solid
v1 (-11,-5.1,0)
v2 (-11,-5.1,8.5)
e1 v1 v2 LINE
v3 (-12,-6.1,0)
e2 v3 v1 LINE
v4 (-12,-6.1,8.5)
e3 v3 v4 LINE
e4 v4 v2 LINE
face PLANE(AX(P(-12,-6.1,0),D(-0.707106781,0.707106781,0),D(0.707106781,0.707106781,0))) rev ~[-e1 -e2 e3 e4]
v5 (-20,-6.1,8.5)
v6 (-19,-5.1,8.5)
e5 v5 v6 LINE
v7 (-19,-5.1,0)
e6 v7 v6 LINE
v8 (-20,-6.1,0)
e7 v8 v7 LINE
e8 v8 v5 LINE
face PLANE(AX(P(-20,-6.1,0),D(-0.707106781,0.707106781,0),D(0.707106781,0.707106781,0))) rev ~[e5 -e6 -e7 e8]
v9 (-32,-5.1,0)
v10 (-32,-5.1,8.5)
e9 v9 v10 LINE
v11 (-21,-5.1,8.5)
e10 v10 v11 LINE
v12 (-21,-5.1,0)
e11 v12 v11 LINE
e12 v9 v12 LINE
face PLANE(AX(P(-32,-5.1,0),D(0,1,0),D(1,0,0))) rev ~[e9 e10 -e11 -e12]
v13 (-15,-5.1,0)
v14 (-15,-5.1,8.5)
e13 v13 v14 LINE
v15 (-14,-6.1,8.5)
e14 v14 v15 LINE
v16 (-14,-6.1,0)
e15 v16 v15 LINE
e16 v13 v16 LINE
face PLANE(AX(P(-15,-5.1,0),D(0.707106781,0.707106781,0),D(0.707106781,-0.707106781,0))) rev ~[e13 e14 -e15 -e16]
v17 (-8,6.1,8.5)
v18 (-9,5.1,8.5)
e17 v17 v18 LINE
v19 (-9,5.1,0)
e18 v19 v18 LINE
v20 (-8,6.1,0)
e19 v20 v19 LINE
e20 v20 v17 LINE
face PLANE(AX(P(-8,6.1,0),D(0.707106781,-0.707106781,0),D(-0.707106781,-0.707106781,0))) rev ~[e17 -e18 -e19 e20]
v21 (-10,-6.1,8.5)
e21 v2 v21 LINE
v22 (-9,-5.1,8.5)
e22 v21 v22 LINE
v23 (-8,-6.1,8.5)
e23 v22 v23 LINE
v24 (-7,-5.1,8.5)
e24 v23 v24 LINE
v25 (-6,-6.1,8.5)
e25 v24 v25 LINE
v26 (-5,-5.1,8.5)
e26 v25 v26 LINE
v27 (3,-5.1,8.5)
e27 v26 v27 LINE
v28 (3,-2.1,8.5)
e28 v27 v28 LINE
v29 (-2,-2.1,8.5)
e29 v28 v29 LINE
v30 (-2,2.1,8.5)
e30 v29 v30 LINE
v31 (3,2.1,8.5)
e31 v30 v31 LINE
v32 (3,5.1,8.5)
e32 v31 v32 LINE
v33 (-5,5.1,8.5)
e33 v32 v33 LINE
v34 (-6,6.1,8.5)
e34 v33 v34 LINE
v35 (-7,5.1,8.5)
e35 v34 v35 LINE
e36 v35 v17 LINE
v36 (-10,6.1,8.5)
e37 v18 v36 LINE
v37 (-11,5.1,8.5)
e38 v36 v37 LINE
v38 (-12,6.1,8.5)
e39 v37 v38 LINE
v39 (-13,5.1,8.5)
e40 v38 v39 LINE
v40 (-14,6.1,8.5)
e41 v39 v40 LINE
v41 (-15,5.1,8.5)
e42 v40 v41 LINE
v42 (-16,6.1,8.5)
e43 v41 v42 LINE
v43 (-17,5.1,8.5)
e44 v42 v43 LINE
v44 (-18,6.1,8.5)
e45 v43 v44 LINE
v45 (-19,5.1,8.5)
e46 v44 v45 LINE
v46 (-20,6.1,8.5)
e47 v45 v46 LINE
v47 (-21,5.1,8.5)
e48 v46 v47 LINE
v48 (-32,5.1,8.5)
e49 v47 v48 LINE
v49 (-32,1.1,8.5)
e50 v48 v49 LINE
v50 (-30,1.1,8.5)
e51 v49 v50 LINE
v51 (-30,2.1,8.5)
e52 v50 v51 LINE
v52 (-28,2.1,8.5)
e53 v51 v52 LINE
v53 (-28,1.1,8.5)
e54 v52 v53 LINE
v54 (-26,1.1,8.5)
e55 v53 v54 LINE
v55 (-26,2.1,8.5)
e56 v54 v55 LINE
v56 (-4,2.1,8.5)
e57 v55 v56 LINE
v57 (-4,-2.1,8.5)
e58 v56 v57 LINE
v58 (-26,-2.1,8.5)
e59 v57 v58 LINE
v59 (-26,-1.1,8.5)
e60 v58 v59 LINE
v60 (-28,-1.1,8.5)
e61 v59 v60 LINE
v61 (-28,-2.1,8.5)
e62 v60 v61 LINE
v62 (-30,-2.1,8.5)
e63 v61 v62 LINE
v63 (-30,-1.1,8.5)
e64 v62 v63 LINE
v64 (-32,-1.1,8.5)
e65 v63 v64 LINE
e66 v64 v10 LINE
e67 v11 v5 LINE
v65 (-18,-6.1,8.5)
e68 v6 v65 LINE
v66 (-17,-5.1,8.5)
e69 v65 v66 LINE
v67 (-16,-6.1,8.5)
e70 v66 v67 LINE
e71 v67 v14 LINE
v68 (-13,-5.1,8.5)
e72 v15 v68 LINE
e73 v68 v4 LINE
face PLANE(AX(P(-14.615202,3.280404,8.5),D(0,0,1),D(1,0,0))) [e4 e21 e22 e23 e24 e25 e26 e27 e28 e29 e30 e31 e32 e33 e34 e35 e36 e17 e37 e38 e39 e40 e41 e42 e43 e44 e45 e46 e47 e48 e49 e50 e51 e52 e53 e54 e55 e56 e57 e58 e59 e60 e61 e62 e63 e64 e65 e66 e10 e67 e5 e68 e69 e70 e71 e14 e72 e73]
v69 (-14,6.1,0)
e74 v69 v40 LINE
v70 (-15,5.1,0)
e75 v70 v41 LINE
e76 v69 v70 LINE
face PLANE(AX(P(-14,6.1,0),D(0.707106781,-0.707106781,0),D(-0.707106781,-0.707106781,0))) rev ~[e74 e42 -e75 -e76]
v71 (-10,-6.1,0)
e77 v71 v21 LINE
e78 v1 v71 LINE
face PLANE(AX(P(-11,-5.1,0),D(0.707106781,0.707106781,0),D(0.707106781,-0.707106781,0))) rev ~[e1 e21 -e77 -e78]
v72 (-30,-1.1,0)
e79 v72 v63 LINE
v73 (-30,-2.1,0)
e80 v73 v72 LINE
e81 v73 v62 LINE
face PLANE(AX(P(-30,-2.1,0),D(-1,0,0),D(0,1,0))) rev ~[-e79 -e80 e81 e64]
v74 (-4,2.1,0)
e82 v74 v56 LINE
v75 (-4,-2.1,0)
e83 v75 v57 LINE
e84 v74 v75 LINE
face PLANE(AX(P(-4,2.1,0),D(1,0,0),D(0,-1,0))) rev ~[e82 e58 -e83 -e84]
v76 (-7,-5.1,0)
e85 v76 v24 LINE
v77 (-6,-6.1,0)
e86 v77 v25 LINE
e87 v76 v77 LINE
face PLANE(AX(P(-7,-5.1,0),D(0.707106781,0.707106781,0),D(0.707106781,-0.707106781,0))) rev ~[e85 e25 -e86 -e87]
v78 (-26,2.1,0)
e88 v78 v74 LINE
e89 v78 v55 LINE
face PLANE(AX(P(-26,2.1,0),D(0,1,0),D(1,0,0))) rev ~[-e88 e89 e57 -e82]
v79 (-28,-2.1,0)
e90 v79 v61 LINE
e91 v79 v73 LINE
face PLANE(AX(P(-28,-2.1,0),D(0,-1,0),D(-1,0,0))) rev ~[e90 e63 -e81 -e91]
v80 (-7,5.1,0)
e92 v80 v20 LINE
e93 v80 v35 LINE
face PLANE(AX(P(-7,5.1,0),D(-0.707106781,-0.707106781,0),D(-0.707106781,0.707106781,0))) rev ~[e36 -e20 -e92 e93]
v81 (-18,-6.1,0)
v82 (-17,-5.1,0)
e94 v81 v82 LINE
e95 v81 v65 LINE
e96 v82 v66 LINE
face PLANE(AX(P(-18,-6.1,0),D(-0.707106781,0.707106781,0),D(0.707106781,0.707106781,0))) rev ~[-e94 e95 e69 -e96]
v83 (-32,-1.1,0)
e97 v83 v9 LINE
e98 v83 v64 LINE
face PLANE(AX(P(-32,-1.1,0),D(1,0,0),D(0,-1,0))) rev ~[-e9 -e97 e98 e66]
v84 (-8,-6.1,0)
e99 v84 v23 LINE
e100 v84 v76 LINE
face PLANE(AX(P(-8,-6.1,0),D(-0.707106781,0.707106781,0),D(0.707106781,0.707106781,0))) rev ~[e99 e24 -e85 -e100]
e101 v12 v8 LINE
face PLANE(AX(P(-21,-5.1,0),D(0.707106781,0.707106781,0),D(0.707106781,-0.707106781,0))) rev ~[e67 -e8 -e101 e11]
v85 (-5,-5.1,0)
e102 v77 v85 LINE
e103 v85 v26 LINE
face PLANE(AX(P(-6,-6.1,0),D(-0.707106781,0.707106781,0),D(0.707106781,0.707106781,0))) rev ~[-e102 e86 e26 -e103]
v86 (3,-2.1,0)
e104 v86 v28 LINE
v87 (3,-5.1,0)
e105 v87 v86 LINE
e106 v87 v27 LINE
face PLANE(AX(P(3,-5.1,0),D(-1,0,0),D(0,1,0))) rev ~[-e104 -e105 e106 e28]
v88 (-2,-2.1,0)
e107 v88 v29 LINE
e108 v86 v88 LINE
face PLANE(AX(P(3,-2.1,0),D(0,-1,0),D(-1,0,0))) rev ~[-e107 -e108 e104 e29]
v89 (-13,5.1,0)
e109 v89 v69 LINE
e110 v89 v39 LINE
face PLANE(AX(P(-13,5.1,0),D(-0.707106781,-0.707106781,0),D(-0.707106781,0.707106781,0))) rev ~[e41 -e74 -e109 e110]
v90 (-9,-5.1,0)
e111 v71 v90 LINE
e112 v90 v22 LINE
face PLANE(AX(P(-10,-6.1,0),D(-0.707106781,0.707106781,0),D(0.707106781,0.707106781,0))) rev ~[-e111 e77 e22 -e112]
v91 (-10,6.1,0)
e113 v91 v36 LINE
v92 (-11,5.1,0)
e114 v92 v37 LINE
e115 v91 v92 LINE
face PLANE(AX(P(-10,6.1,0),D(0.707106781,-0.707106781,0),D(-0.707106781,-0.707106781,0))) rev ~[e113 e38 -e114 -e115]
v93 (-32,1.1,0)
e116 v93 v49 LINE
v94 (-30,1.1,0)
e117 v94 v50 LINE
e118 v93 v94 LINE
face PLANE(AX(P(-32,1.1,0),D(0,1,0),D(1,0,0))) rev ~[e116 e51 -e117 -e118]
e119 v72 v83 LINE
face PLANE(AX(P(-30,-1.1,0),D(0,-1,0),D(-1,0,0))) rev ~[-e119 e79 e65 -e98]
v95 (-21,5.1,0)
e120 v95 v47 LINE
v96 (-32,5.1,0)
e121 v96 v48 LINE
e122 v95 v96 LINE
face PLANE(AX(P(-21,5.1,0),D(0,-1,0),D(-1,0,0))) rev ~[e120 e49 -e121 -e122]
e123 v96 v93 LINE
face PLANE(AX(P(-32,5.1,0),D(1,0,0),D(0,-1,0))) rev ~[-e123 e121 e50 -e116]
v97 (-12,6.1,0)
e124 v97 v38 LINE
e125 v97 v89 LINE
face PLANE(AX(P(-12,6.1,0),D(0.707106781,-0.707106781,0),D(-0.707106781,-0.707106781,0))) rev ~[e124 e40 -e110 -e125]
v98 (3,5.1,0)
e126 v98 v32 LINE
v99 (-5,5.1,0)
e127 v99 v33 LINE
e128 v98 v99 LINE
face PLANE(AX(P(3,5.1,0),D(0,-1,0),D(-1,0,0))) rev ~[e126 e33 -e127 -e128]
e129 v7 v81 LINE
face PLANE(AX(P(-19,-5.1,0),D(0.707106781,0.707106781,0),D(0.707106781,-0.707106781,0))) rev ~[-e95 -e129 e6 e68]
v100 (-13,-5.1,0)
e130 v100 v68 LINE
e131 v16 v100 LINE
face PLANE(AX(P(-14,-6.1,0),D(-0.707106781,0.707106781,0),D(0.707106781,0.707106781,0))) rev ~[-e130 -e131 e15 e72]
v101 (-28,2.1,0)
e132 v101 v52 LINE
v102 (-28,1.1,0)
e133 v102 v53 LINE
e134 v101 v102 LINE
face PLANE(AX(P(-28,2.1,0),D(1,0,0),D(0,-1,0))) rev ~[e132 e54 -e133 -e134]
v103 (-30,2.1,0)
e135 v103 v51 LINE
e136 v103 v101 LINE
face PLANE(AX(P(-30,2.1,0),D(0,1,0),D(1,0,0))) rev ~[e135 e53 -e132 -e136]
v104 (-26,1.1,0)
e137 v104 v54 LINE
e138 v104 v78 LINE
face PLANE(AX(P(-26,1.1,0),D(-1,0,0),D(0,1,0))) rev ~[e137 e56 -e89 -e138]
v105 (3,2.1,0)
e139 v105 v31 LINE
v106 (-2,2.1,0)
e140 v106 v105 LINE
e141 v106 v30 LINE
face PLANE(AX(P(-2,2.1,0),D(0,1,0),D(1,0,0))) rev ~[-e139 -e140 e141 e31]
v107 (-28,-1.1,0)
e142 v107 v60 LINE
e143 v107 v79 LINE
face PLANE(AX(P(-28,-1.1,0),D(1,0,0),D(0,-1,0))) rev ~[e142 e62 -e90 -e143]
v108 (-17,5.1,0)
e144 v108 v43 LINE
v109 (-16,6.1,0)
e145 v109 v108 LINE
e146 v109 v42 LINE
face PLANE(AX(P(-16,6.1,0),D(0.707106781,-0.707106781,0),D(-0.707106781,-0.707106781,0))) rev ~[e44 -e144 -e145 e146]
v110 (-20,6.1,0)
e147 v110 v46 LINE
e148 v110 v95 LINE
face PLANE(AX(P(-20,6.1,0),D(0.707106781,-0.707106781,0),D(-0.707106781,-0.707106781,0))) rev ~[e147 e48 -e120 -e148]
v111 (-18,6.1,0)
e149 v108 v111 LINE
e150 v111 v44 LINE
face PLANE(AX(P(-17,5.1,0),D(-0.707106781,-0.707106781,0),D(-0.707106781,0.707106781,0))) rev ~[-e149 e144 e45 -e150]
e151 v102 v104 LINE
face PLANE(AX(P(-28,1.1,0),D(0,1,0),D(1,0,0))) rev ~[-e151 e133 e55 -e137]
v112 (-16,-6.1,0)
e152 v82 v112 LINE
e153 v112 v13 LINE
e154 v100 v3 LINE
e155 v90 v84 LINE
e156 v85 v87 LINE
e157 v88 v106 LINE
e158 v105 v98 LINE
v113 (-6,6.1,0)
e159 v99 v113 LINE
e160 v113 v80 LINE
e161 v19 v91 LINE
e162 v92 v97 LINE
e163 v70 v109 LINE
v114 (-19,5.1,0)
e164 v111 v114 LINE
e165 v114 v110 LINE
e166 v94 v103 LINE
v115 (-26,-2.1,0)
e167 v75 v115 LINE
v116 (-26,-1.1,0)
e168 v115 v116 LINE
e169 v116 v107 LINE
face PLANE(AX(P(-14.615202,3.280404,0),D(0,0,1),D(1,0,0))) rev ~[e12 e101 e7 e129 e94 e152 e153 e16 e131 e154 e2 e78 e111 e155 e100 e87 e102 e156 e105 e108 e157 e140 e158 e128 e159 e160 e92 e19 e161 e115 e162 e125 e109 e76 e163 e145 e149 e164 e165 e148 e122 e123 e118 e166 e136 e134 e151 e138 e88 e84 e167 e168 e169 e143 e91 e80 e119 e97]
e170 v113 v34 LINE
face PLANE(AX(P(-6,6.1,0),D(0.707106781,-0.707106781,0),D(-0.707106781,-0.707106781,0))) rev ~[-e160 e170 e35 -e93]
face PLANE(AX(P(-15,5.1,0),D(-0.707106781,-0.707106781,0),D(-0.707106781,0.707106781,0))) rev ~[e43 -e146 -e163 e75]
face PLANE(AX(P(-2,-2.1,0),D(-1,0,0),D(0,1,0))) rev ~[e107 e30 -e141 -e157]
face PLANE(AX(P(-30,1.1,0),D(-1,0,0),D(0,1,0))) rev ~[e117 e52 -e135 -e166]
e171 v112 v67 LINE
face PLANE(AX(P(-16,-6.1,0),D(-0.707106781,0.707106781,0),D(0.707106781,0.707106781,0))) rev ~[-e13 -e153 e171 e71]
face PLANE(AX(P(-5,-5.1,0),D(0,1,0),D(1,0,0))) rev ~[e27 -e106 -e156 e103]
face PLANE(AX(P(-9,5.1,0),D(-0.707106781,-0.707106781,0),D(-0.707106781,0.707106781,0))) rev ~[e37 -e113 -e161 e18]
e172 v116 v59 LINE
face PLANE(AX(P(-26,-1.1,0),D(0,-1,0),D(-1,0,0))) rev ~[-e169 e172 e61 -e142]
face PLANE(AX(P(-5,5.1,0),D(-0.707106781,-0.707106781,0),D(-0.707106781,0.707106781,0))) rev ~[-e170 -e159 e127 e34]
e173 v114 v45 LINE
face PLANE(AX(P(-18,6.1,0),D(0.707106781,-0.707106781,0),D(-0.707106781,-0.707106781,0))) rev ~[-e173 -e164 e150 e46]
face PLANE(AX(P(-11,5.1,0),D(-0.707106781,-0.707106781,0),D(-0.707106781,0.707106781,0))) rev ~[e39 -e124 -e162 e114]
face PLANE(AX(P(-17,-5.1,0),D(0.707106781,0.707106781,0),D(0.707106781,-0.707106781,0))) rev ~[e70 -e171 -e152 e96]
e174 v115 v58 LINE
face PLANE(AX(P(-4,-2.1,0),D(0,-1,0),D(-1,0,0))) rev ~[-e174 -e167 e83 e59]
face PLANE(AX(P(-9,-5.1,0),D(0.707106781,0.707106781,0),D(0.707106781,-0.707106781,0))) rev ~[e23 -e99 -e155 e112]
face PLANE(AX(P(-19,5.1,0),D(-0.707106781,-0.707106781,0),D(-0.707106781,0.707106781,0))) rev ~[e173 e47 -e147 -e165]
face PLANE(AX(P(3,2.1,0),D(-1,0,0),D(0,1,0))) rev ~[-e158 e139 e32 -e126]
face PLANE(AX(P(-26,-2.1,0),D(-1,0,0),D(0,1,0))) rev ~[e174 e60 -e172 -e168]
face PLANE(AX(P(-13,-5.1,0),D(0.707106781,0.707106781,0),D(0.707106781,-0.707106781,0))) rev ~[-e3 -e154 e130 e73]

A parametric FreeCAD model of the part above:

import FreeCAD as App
import Part
import Sketcher
from FreeCAD import Vector


def add_polygon(sketch, points):
    """Adds a closed chain of lines whose ends are joined by coincident constraints."""
    first, n = sketch.GeometryCount, len(points)
    for a, b in zip(points, points[1:] + points[:1]):
        sketch.addGeometry(Part.LineSegment(App.Vector(*a, 0), App.Vector(*b, 0)), False)
    for i in range(n):
        sketch.addConstraint(Sketcher.Constraint("Coincident", first + i, 2, first + (i + 1) % n, 1))

doc = App.newDocument("Part")
params = doc.addObject("Spreadsheet::Sheet", "Params")
for row, (alias, value) in enumerate([
    ("sketch1_width", "22 mm"),
    ("sketch1_width2", "2 mm"),
    ("sketch1_width3", "11 mm"),
    ("sketch1_width4", "8 mm"),
    ("sketch1_width5", "5 mm"),
    ("pad1_length", "8.5 mm"),
], start=1):
    params.set(f"A{row}", alias)
    params.set(f"B{row}", "=" + value)
    params.setAlias(f"B{row}", alias)

body = doc.addObject("PartDesign::Body", "Body")

# Sketch on XY plane
sketch1 = body.newObject("Sketcher::SketchObject", "Sketch")
sketch1.AttachmentSupport = (doc.getObject("XY_Plane"), [""])
sketch1.MapMode = "FlatFace"
add_polygon(sketch1, [(-4, 2.1), (-4, -2.1), (-26, -2.1), (-26, -1.1), (-28, -1.1), (-28, -2.1), (-30, -2.1), (-30, -1.1), (-32, -1.1), (-32, -5.1), (-21, -5.1), (-20, -6.1), (-19, -5.1), (-18, -6.1), (-17, -5.1), (-16, -6.1), (-15, -5.1), (-14, -6.1), (-13, -5.1), (-12, -6.1), (-11, -5.1), (-10, -6.1), (-9, -5.1), (-8, -6.1), (-7, -5.1), (-6, -6.1), (-5, -5.1), (3, -5.1), (3, -2.1), (-2, -2.1), (-2, 2.1), (3, 2.1), (3, 5.1), (-5, 5.1), (-6, 6.1), (-7, 5.1), (-8, 6.1), (-9, 5.1), (-10, 6.1), (-11, 5.1), (-12, 6.1), (-13, 5.1), (-14, 6.1), (-15, 5.1), (-16, 6.1), (-17, 5.1), (-18, 6.1), (-19, 5.1), (-20, 6.1), (-21, 5.1), (-32, 5.1), (-32, 1.1), (-30, 1.1), (-30, 2.1), (-28, 2.1), (-28, 1.1), (-26, 1.1), (-26, 2.1)])  # lines 0-57
sketch1.addConstraint(Sketcher.Constraint("Vertical", 0))
sketch1.addConstraint(Sketcher.Constraint("Horizontal", 1))
sketch1.addConstraint(Sketcher.Constraint("Vertical", 2))
sketch1.addConstraint(Sketcher.Constraint("Horizontal", 3))
sketch1.addConstraint(Sketcher.Constraint("Vertical", 4))
sketch1.addConstraint(Sketcher.Constraint("Horizontal", 5))
sketch1.addConstraint(Sketcher.Constraint("Vertical", 6))
sketch1.addConstraint(Sketcher.Constraint("Horizontal", 7))
sketch1.addConstraint(Sketcher.Constraint("Vertical", 8))
sketch1.addConstraint(Sketcher.Constraint("Horizontal", 9))
sketch1.addConstraint(Sketcher.Constraint("Horizontal", 26))
sketch1.addConstraint(Sketcher.Constraint("Vertical", 27))
sketch1.addConstraint(Sketcher.Constraint("Horizontal", 28))
sketch1.addConstraint(Sketcher.Constraint("Vertical", 29))
sketch1.addConstraint(Sketcher.Constraint("Horizontal", 30))
sketch1.addConstraint(Sketcher.Constraint("Vertical", 31))
sketch1.addConstraint(Sketcher.Constraint("Horizontal", 32))
sketch1.addConstraint(Sketcher.Constraint("Horizontal", 49))
sketch1.addConstraint(Sketcher.Constraint("Vertical", 50))
sketch1.addConstraint(Sketcher.Constraint("Horizontal", 51))
sketch1.addConstraint(Sketcher.Constraint("Vertical", 52))
sketch1.addConstraint(Sketcher.Constraint("Horizontal", 53))
sketch1.addConstraint(Sketcher.Constraint("Vertical", 54))
sketch1.addConstraint(Sketcher.Constraint("Horizontal", 55))
sketch1.addConstraint(Sketcher.Constraint("Vertical", 56))
sketch1.addConstraint(Sketcher.Constraint("Horizontal", 57))
sketch1.addConstraint(Sketcher.Constraint("Symmetric", 27, 2, 30, 2, -1))
sketch1.addConstraint(Sketcher.Constraint("Symmetric", 25, 2, 32, 2, -1))
sketch1.addConstraint(Sketcher.Constraint("Symmetric", 24, 2, 33, 2, -1))
sketch1.addConstraint(Sketcher.Constraint("Symmetric", 23, 2, 34, 2, -1))
sketch1.addConstraint(Sketcher.Constraint("Symmetric", 22, 2, 35, 2, -1))
sketch1.addConstraint(Sketcher.Constraint("Symmetric", 21, 2, 36, 2, -1))
sketch1.addConstraint(Sketcher.Constraint("Symmetric", 20, 2, 37, 2, -1))
sketch1.addConstraint(Sketcher.Constraint("Symmetric", 19, 2, 38, 2, -1))
sketch1.addConstraint(Sketcher.Constraint("Symmetric", 18, 2, 39, 2, -1))
sketch1.addConstraint(Sketcher.Constraint("Symmetric", 17, 2, 40, 2, -1))
sketch1.addConstraint(Sketcher.Constraint("Symmetric", 16, 2, 41, 2, -1))
sketch1.addConstraint(Sketcher.Constraint("Symmetric", 15, 2, 42, 2, -1))
sketch1.addConstraint(Sketcher.Constraint("Symmetric", 14, 2, 43, 2, -1))
sketch1.addConstraint(Sketcher.Constraint("Symmetric", 13, 2, 44, 2, -1))
sketch1.addConstraint(Sketcher.Constraint("Symmetric", 12, 2, 45, 2, -1))
sketch1.addConstraint(Sketcher.Constraint("Symmetric", 11, 2, 46, 2, -1))
sketch1.addConstraint(Sketcher.Constraint("Symmetric", 10, 2, 47, 2, -1))
sketch1.addConstraint(Sketcher.Constraint("Symmetric", 9, 2, 48, 2, -1))
sketch1.addConstraint(Sketcher.Constraint("Symmetric", 7, 2, 50, 2, -1))
sketch1.addConstraint(Sketcher.Constraint("Symmetric", 5, 2, 52, 2, -1))
sketch1.addConstraint(Sketcher.Constraint("Symmetric", 3, 2, 54, 2, -1))
sketch1.addConstraint(Sketcher.Constraint("Symmetric", 1, 2, 56, 2, -1))
sketch1.addConstraint(Sketcher.Constraint("Perpendicular", 10, 11))
sketch1.addConstraint(Sketcher.Constraint("Perpendicular", 11, 12))
sketch1.addConstraint(Sketcher.Constraint("Perpendicular", 12, 13))
sketch1.addConstraint(Sketcher.Constraint("Perpendicular", 13, 14))
sketch1.addConstraint(Sketcher.Constraint("Perpendicular", 14, 15))
sketch1.addConstraint(Sketcher.Constraint("Perpendicular", 15, 16))
sketch1.addConstraint(Sketcher.Constraint("Perpendicular", 16, 17))
sketch1.addConstraint(Sketcher.Constraint("Perpendicular", 17, 18))
sketch1.addConstraint(Sketcher.Constraint("Perpendicular", 18, 19))
sketch1.addConstraint(Sketcher.Constraint("Perpendicular", 19, 20))
sketch1.addConstraint(Sketcher.Constraint("Perpendicular", 20, 21))
sketch1.addConstraint(Sketcher.Constraint("Perpendicular", 21, 22))
sketch1.addConstraint(Sketcher.Constraint("Perpendicular", 22, 23))
sketch1.addConstraint(Sketcher.Constraint("Perpendicular", 23, 24))
sketch1.addConstraint(Sketcher.Constraint("Perpendicular", 24, 25))
sketch1.addConstraint(Sketcher.Constraint("Perpendicular", 25, 33))
sketch1.addConstraint(Sketcher.Constraint("Horizontal", 1, 2, 4, 2))
sketch1.addConstraint(Sketcher.Constraint("Horizontal", 3, 2, 6, 2))
sketch1.addConstraint(Sketcher.Constraint("Horizontal", 9, 2, 11, 2))
sketch1.addConstraint(Sketcher.Constraint("Horizontal", 10, 2, 12, 2))
sketch1.addConstraint(Sketcher.Constraint("Horizontal", 11, 2, 13, 2))
sketch1.addConstraint(Sketcher.Constraint("Horizontal", 12, 2, 14, 2))
sketch1.addConstraint(Sketcher.Constraint("Horizontal", 13, 2, 15, 2))
sketch1.addConstraint(Sketcher.Constraint("Horizontal", 14, 2, 16, 2))
sketch1.addConstraint(Sketcher.Constraint("Horizontal", 15, 2, 17, 2))
sketch1.addConstraint(Sketcher.Constraint("Horizontal", 16, 2, 18, 2))
sketch1.addConstraint(Sketcher.Constraint("Horizontal", 17, 2, 19, 2))
sketch1.addConstraint(Sketcher.Constraint("Horizontal", 18, 2, 20, 2))
sketch1.addConstraint(Sketcher.Constraint("Horizontal", 19, 2, 21, 2))
sketch1.addConstraint(Sketcher.Constraint("Horizontal", 20, 2, 22, 2))
sketch1.addConstraint(Sketcher.Constraint("Horizontal", 21, 2, 23, 2))
sketch1.addConstraint(Sketcher.Constraint("Horizontal", 22, 2, 24, 2))
sketch1.addConstraint(Sketcher.Constraint("Horizontal", 23, 2, 25, 2))
sketch1.addConstraint(Sketcher.Constraint("Horizontal", 5, 2, 27, 2))
sketch1.addConstraint(Sketcher.Constraint("Equal", 3, 5))
sketch1.addConstraint(Sketcher.Constraint("Equal", 5, 7))
sketch1.addConstraint(Sketcher.Constraint("DistanceX", 1, 2, 1, 1, 22.0))
sketch1.addConstraint(Sketcher.Constraint("DistanceX", 3, 2, 3, 1, 2.0))
sketch1.addConstraint(Sketcher.Constraint("DistanceX", 9, 1, 9, 2, 11.0))
sketch1.addConstraint(Sketcher.Constraint("DistanceX", 26, 1, 26, 2, 8.0))
sketch1.addConstraint(Sketcher.Constraint("DistanceX", 28, 2, 28, 1, 5.0))
sketch1.addConstraint(Sketcher.Constraint("DistanceY", 2, 1, 2, 2, 1.0))
sketch1.addConstraint(Sketcher.Constraint("DistanceY", 8, 2, 8, 1, 4.0))
sketch1.addConstraint(Sketcher.Constraint("DistanceY", 0, 2, 0, 1, 4.2))
sketch1.addConstraint(Sketcher.Constraint("DistanceX", 0, 2, -1, 1, 4.0))
sketch1.addConstraint(Sketcher.Constraint("DistanceX", 10, 2, -1, 1, 20.0))
sketch1.setExpression("Constraints[142]", "Params.sketch1_width")
sketch1.setExpression("Constraints[143]", "Params.sketch1_width2")
sketch1.setExpression("Constraints[144]", "Params.sketch1_width3")
sketch1.setExpression("Constraints[145]", "Params.sketch1_width4")
sketch1.setExpression("Constraints[146]", "Params.sketch1_width5")
pad1 = body.newObject("PartDesign::Pad", "Pad")
pad1.Profile = sketch1
pad1.setExpression("Length", "Params.pad1_length")

doc.recompute()
